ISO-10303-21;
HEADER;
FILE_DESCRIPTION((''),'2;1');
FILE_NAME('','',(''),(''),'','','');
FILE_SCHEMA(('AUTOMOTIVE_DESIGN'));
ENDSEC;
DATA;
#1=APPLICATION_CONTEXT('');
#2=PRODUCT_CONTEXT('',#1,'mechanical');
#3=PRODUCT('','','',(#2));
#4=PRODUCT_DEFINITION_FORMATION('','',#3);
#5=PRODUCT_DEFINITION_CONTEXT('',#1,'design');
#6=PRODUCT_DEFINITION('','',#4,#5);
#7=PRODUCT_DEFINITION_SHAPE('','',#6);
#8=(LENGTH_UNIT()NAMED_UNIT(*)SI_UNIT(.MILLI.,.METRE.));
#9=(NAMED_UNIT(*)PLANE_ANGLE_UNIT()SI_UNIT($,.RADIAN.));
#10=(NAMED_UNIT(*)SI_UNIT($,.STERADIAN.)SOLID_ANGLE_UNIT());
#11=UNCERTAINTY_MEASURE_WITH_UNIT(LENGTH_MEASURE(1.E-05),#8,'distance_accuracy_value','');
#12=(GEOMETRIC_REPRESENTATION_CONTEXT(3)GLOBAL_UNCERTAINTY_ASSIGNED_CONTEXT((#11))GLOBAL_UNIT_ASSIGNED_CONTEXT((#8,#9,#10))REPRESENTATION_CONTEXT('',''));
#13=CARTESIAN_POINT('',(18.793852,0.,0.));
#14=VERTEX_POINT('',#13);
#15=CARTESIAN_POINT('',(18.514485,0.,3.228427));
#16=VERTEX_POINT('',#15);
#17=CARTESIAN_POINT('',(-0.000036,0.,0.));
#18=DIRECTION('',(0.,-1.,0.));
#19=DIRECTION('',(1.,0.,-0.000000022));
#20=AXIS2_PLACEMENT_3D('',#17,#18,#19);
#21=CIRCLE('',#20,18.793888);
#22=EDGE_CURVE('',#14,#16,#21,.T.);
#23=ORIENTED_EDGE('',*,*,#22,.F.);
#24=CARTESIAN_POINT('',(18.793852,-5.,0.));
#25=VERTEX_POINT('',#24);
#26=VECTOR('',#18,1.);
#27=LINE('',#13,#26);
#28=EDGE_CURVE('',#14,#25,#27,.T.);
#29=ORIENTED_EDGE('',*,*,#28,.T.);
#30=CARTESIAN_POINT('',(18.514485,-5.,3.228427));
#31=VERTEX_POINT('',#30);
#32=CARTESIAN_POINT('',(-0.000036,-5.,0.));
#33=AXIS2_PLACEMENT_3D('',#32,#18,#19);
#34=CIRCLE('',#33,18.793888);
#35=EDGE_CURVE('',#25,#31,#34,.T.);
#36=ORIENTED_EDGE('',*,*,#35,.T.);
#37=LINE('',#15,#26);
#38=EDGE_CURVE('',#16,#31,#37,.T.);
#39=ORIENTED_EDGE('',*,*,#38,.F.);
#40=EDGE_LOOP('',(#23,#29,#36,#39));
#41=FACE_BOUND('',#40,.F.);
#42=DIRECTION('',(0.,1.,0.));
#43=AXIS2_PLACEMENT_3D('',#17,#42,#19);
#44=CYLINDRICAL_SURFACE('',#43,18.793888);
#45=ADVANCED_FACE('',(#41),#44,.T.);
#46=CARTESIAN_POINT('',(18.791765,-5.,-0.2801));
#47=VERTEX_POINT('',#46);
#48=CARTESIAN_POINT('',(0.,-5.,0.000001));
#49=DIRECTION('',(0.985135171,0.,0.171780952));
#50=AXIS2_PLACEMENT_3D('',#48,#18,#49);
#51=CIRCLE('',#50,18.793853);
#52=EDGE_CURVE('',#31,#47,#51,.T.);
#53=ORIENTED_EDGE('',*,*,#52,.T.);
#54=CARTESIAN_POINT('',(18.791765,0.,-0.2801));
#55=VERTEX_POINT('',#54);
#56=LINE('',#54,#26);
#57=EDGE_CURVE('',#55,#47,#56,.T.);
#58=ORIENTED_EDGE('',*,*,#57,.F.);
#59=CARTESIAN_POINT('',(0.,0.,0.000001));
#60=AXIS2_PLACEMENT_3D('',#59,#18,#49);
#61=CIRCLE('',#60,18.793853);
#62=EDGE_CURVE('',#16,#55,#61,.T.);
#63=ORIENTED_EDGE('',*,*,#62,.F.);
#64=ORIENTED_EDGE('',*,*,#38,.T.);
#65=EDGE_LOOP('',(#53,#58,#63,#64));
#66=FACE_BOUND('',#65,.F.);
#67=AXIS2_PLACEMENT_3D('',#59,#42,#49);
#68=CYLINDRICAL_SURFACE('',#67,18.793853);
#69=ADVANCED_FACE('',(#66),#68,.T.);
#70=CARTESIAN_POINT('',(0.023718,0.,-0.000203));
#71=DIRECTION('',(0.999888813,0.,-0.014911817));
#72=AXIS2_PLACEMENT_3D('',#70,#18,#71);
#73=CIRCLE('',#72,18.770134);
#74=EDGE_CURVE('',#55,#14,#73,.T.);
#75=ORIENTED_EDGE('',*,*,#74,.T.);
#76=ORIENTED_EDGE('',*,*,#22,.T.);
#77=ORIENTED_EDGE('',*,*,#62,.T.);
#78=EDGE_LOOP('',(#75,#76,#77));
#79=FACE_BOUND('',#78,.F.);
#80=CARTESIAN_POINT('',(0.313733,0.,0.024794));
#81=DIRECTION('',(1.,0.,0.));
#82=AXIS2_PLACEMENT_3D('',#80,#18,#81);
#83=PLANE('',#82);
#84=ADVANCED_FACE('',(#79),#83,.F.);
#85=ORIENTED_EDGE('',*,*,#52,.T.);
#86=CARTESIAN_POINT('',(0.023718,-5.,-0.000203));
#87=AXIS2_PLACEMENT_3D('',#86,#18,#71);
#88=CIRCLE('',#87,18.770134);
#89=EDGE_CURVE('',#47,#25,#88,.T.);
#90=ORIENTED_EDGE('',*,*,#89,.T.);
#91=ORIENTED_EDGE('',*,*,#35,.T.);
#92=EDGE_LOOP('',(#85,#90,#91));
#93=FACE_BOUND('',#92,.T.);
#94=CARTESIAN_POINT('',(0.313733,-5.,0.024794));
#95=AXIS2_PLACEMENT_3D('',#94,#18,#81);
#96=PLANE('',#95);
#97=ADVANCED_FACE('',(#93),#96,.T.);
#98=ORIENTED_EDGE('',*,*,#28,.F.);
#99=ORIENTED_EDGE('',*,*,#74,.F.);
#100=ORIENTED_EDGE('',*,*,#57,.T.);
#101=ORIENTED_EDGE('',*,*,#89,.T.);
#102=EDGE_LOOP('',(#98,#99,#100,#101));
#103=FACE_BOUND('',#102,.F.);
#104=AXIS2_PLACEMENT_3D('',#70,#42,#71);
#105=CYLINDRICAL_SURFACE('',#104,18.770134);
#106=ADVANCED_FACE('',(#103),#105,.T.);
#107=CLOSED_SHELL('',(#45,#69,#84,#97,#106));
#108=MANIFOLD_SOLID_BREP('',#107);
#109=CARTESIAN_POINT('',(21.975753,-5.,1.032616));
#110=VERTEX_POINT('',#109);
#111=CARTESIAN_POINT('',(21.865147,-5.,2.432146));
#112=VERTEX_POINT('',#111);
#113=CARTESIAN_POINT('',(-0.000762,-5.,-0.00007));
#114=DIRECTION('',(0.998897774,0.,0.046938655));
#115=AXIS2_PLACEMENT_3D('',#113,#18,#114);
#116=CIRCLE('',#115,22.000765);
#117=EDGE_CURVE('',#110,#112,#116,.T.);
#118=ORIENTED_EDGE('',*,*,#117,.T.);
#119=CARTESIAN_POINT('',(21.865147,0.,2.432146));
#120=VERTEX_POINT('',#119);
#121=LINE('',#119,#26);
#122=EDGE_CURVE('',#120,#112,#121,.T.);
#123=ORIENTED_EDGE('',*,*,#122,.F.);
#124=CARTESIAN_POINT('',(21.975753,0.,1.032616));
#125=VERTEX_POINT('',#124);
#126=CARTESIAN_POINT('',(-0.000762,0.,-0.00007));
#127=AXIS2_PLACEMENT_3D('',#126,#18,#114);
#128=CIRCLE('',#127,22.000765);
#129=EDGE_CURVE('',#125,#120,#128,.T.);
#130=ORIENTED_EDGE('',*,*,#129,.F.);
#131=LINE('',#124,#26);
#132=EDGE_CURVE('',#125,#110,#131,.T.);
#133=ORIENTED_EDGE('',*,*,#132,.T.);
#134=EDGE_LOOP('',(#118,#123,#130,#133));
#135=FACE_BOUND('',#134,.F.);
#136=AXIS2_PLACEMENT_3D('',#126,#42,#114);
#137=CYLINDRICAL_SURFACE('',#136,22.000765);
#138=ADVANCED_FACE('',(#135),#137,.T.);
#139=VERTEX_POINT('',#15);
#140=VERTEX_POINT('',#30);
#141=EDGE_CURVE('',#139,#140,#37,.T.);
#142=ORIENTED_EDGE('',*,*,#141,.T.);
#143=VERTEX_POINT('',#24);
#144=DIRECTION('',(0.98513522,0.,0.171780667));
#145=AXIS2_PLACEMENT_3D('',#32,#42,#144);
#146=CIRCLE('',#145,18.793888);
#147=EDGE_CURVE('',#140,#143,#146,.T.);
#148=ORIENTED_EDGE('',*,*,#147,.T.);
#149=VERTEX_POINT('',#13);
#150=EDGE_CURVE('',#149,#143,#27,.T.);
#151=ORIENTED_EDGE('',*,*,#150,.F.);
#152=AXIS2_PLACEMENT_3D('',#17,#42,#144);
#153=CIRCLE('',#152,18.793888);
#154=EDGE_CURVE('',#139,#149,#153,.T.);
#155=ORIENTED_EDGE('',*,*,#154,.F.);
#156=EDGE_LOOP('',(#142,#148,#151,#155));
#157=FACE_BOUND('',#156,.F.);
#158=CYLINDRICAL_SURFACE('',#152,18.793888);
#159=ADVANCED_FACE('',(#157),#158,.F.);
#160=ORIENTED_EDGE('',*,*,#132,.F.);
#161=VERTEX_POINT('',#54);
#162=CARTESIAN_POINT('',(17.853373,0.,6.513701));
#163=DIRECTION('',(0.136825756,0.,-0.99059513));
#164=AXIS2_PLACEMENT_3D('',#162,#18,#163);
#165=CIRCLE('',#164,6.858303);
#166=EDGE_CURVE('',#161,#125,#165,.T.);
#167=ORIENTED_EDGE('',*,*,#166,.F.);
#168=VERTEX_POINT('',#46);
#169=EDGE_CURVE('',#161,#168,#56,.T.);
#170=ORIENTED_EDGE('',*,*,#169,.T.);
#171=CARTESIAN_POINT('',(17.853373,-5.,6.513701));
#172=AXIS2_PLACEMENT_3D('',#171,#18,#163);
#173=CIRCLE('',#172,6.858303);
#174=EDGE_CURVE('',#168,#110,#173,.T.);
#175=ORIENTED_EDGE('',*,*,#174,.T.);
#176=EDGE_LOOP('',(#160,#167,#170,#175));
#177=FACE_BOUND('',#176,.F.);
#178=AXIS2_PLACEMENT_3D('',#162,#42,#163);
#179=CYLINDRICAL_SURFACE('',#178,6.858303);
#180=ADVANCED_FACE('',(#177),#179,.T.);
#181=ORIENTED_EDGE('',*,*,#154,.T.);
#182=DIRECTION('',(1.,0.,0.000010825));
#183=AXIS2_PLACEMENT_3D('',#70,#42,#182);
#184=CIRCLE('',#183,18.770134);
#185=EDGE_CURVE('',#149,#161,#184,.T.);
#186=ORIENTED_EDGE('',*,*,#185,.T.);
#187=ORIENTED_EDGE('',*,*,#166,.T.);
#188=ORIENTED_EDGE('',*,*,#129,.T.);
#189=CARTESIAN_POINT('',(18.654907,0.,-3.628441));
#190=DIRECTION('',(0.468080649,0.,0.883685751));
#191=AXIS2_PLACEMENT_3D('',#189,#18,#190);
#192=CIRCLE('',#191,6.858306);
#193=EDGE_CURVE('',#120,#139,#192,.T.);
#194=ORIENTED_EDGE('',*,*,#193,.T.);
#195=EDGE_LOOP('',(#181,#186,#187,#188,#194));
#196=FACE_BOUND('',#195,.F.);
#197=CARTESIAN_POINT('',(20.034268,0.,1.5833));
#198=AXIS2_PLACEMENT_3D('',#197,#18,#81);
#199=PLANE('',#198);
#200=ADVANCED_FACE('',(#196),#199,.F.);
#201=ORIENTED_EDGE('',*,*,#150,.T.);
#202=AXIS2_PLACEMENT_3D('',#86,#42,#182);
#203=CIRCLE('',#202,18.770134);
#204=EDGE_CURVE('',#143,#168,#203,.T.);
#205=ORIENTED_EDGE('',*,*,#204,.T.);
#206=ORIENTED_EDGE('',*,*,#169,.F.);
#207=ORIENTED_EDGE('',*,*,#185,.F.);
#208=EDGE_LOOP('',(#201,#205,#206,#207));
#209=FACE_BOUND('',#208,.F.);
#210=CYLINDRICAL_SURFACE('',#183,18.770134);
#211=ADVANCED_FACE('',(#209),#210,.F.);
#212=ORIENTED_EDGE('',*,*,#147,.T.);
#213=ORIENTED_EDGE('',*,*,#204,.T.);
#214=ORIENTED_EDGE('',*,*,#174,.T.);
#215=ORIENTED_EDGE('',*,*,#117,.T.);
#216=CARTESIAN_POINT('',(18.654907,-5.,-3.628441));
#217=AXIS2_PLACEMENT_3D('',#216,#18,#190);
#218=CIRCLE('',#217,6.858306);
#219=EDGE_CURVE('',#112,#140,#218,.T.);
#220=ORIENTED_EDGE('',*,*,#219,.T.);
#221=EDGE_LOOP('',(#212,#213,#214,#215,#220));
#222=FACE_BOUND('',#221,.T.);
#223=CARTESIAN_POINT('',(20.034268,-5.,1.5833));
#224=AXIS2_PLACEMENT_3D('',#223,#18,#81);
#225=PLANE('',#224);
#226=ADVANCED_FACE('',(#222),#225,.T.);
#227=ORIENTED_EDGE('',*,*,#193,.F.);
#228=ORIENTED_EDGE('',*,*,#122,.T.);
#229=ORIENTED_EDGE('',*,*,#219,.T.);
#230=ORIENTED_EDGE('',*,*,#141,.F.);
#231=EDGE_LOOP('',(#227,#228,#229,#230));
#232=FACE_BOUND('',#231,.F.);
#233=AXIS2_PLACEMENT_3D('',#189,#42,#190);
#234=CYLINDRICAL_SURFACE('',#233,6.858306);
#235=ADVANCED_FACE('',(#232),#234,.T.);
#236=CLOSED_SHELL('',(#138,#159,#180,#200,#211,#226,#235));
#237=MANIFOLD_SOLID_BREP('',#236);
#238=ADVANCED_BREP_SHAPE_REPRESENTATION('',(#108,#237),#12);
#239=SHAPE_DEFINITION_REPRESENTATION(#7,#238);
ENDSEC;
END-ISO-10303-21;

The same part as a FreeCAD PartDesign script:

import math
import FreeCAD as App
import Part
import Sketcher

doc = App.newDocument("Part")
params = doc.addObject("Spreadsheet::Sheet", "Params")
for row, (alias, value) in enumerate([
    ("pad1_length", "5 mm"),
    ("pad2_length", "5 mm"),
], start=1):
    params.set(f"A{row}", alias)
    params.set(f"B{row}", "=" + value)
    params.setAlias(f"B{row}", alias)

body = doc.addObject("PartDesign::Body", "Body")

# Sketch on XZ plane
sketch1 = body.newObject("Sketcher::SketchObject", "Sketch")
sketch1.AttachmentSupport = (doc.getObject("XZ_Plane"), [""])
sketch1.MapMode = "FlatFace"
sketch1.addGeometry([
    Part.ArcOfCircle(Part.Circle(App.Vector(0.023718, -0.000203, 0), App.Vector(0, 0, 1), 18.770134), math.radians(-0.854416), math.radians(0.00062)),
    Part.ArcOfCircle(Part.Circle(App.Vector(-0.000036, 0, 0), App.Vector(0, 0, 1), 18.793888), math.radians(-0.000001), math.radians(9.891367)),
    Part.ArcOfCircle(Part.Circle(App.Vector(0, 0.000001, 0), App.Vector(0, 0, 1), 18.793853), math.radians(9.891384), math.radians(359.14604)),
], False)
sketch1.addConstraint([
    Sketcher.Constraint("Coincident", 0, 2, 1, 1),
    Sketcher.Constraint("Coincident", 1, 2, 2, 1),
    Sketcher.Constraint("Coincident", 2, 2, 0, 1),
    Sketcher.Constraint("Coincident", 2, 3, -1, 1),
    Sketcher.Constraint("PointOnObject", 1, 3, -1),
    Sketcher.Constraint("PointOnObject", 0, 2, -1),
    Sketcher.Constraint("Radius", 0, 18.770134),
    Sketcher.Constraint("Radius", 1, 18.793888),
    Sketcher.Constraint("Radius", 2, 18.793853),
    Sketcher.Constraint("DistanceY", 2, 2, -1, 1, 0.2801),
    Sketcher.Constraint("DistanceY", 0, 3, 1, 2, 3.22863),
])
pad1 = body.newObject("PartDesign::Pad", "Pad")
pad1.Profile = sketch1
pad1.setExpression("Length", "Params.pad1_length")
body2 = doc.addObject("PartDesign::Body", "Body001")

# Sketch on XZ plane
sketch2 = body2.newObject("Sketcher::SketchObject", "Sketch001")
sketch2.AttachmentSupport = (doc.getObject("XZ_Plane001"), [""])
sketch2.MapMode = "FlatFace"
sketch2.addGeometry([
    Part.ArcOfCircle(Part.Circle(App.Vector(0, 0, 0), App.Vector(0, 0, 1), 18.79), math.radians(0), math.radians(9.89)),  # 0
    Part.ArcOfCircle(Part.Circle(App.Vector(0.02, 0, 0), App.Vector(0, 0, 1), 18.77), math.radians(-0.85), math.radians(0)),  # 1
    Part.ArcOfCircle(Part.Circle(App.Vector(17.85, 6.51, 0), App.Vector(0, 0, 1), 6.86), math.radians(-82), math.radians(-53)),  # 2
    Part.ArcOfCircle(Part.Circle(App.Vector(0, 0, 0), App.Vector(0, 0, 1), 22), math.radians(2.69), math.radians(6.35)),  # 3
    Part.ArcOfCircle(Part.Circle(App.Vector(18.65, -3.63, 0), App.Vector(0, 0, 1), 6.86), math.radians(62), math.radians(91)),  # 4
], False)
sketch2.addConstraint([
    Sketcher.Constraint("Coincident", 0, 1, 1, 2),
    Sketcher.Constraint("Coincident", 1, 1, 2, 1),
    Sketcher.Constraint("Coincident", 2, 2, 3, 1),
    Sketcher.Constraint("Coincident", 3, 2, 4, 1),
    Sketcher.Constraint("Coincident", 4, 2, 0, 2),
    Sketcher.Constraint("PointOnObject", 0, 3, -1),
    Sketcher.Constraint("PointOnObject", 0, 1, -1),
    Sketcher.Constraint("Radius", 0, 18.793888),
    Sketcher.Constraint("Radius", 1, 18.770134),
    Sketcher.Constraint("Radius", 2, 6.858303),
    Sketcher.Constraint("Radius", 3, 22.000765),
    Sketcher.Constraint("Radius", 4, 6.858306),
    Sketcher.Constraint("DistanceY", -1, 1, 2, 3, 6.513701),
    Sketcher.Constraint("DistanceY", 1, 1, -1, 1, 0.2801),
    Sketcher.Constraint("DistanceX", 0, 3, 1, 1, 18.791801),
    Sketcher.Constraint("DistanceX", 0, 1, 2, 2, 3.181901),
    Sketcher.Constraint("DistanceY", 4, 3, -1, 1, 3.628441),
    Sketcher.Constraint("DistanceX", -1, 1, 0, 1, 18.793852),
    Sketcher.Constraint("DistanceX", 3, 3, 1, 3, 0.02448),
    Sketcher.Constraint("DistanceX", 1, 3, 4, 3, 18.631189),
])
pad2 = body2.newObject("PartDesign::Pad", "Pad001")
pad2.Profile = sketch2
pad2.setExpression("Length", "Params.pad2_length")

doc.recompute()
